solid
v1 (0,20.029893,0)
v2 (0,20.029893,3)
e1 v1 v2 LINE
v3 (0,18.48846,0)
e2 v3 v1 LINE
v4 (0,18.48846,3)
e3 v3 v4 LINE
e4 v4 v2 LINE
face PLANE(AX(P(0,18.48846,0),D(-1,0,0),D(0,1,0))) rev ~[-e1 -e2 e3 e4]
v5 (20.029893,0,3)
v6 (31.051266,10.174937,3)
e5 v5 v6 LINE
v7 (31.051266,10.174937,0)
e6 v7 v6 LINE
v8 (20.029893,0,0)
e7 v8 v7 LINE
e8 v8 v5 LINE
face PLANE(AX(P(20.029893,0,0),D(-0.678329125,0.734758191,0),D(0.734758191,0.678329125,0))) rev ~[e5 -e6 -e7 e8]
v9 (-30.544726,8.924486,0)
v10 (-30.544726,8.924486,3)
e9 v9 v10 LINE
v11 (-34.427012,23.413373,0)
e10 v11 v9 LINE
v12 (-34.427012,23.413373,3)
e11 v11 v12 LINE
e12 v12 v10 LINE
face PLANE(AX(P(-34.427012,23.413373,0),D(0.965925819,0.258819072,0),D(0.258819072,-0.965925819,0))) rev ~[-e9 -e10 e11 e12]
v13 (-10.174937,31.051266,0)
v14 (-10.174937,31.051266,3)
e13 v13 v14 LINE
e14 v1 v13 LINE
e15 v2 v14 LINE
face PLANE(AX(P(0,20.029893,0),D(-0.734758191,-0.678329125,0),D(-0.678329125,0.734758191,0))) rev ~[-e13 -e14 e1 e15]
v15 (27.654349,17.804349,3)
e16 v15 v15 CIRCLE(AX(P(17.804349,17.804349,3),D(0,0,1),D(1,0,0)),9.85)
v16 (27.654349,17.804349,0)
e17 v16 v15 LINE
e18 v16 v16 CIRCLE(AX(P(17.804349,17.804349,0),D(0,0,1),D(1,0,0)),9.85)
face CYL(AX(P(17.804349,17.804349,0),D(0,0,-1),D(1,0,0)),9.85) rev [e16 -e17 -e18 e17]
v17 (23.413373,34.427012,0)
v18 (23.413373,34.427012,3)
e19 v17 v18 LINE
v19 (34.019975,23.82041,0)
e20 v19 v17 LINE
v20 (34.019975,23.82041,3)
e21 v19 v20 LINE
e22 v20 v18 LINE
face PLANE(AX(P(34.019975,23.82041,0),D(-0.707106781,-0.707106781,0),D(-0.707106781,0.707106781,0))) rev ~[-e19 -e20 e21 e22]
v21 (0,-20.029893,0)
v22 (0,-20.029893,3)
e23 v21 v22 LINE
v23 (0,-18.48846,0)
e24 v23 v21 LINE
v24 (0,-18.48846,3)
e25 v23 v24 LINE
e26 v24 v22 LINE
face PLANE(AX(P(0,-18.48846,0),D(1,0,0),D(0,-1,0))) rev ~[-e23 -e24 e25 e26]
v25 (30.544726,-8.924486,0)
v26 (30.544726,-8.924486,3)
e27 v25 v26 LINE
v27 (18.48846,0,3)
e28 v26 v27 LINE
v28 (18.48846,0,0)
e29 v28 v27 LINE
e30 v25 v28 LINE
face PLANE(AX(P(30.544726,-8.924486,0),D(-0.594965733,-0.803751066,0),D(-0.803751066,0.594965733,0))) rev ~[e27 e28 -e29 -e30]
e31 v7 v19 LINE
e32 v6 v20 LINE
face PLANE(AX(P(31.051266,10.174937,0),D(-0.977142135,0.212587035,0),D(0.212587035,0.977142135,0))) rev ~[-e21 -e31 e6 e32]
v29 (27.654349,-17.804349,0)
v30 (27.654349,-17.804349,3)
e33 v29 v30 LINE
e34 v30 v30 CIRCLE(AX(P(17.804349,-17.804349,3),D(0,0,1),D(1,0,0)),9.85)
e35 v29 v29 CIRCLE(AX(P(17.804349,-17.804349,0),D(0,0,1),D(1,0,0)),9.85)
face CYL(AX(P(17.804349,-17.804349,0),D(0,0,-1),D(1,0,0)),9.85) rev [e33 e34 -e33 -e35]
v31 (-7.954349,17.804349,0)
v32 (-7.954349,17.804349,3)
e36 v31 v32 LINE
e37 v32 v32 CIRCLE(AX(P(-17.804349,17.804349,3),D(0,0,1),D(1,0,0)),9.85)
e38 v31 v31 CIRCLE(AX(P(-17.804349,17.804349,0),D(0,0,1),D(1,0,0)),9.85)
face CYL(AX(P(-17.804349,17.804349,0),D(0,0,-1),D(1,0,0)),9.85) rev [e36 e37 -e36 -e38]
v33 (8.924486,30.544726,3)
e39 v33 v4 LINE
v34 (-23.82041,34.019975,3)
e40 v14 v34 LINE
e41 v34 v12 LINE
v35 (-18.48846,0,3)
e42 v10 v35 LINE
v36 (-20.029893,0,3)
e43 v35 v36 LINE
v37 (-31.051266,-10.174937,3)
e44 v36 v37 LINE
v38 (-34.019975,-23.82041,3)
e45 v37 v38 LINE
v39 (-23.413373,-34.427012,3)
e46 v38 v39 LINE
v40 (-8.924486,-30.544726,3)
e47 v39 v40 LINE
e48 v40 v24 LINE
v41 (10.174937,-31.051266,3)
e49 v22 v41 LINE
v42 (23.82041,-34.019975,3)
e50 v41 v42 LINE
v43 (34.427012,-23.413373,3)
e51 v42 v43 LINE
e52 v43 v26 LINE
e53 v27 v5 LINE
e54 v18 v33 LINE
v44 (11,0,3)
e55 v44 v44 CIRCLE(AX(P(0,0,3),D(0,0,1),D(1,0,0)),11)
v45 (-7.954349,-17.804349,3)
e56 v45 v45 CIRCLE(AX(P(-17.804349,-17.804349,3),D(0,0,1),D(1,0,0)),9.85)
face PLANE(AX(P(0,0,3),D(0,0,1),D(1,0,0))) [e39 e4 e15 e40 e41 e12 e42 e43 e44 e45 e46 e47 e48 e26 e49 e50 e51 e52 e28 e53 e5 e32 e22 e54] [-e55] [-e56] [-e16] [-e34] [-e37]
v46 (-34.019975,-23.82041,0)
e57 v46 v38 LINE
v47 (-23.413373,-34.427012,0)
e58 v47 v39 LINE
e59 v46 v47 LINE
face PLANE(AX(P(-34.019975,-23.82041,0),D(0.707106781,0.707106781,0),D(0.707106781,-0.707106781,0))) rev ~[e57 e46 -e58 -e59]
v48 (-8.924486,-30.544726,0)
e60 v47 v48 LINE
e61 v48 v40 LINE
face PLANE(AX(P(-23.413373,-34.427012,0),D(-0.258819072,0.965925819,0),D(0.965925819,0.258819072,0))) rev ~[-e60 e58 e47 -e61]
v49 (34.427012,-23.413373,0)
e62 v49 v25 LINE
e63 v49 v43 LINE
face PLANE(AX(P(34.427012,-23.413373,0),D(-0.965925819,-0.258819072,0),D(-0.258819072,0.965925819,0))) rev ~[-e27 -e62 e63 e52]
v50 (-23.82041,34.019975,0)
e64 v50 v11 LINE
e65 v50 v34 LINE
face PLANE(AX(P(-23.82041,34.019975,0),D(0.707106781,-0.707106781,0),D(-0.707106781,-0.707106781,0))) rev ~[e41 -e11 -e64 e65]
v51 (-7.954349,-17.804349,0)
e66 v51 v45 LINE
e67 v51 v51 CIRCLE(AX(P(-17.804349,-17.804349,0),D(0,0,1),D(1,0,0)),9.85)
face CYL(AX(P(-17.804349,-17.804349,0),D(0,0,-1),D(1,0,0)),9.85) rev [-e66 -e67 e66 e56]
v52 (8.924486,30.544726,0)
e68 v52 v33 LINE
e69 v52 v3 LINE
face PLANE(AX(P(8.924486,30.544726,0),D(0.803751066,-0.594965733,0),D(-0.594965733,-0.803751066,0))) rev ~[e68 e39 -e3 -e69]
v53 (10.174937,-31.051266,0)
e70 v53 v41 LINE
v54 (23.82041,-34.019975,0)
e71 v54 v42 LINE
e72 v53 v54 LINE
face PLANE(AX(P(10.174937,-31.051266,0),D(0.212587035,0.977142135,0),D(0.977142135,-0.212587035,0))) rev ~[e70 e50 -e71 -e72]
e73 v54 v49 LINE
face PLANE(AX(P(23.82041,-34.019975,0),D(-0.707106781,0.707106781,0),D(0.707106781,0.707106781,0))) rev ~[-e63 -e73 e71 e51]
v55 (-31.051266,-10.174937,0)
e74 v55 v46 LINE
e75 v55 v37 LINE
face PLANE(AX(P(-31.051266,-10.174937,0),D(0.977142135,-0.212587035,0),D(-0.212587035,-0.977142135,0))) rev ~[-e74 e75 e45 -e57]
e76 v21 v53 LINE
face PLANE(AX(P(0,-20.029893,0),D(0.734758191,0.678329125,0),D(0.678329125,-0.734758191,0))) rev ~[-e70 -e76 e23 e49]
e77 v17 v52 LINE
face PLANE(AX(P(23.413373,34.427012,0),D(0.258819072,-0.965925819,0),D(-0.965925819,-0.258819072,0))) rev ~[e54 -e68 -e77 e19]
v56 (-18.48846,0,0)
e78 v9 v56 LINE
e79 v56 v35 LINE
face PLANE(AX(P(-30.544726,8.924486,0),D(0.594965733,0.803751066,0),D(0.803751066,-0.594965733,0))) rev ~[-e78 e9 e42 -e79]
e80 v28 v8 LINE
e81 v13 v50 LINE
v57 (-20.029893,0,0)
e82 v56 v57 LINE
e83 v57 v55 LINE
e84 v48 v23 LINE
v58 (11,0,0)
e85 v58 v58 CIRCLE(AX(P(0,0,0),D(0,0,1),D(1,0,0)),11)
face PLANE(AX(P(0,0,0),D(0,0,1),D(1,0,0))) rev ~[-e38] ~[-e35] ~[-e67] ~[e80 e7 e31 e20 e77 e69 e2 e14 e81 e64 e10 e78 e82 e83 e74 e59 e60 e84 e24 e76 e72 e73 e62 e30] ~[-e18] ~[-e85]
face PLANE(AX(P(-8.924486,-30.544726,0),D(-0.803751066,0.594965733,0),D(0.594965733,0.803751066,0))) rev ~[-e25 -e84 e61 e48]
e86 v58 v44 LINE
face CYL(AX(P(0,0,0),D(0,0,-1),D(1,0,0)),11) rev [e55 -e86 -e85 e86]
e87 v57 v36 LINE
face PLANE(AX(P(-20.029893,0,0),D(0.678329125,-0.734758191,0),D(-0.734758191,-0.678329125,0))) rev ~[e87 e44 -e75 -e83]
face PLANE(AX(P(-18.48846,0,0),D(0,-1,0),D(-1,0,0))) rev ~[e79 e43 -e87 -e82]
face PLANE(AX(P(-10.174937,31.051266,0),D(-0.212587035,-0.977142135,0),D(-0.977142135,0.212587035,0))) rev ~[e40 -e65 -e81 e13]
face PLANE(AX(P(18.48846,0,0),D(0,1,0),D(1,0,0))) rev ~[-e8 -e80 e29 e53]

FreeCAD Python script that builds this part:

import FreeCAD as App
import Part
import Sketcher
Q = App.Units.Quantity


def add_polygon(sketch, points):
    """Adds a closed chain of lines whose ends are joined by coincident constraints."""
    first, n = sketch.GeometryCount, len(points)
    for a, b in zip(points, points[1:] + points[:1]):
        sketch.addGeometry(Part.LineSegment(App.Vector(*a, 0), App.Vector(*b, 0)), False)
    for i in range(n):
        sketch.addConstraint(Sketcher.Constraint("Coincident", first + i, 2, first + (i + 1) % n, 1))

doc = App.newDocument("Part")
body = doc.addObject("PartDesign::Body", "Body")

# Sketch on XY plane
sketch1 = doc.addObject("Sketcher::SketchObject", "Sketch")
body.addObject(sketch1)
sketch1.AttachmentSupport = (doc.XY_Plane, [""])
sketch1.MapMode = "FlatFace"
add_polygon(sketch1, [(0, 20), (-10.2, 31.1), (-23.8, 34), (-34.4, 23.4), (-30.5, 8.9), (-18.5, 0), (-20, 0), (-31.1, -10.2), (-34, -23.8), (-23.4, -34.4), (-8.9, -30.5), (0, -18.5), (0, -20), (10.2, -31.1), (23.8, -34), (34.4, -23.4), (30.5, -8.9), (18.5, 0), (20, 0), (31.1, 10.2), (34, 23.8), (23.4, 34.4), (8.9, 30.5), (0, 18.5)])  # lines 0-23
sketch1.addGeometry(Part.Circle(App.Vector(-17.8, -17.8, 0), App.Vector(0, 0, 1), 9.8), False)  # 24
sketch1.addGeometry(Part.Circle(App.Vector(0, 0, 0), App.Vector(0, 0, 1), 11), False)  # 25
sketch1.addGeometry(Part.Circle(App.Vector(17.8, -17.8, 0), App.Vector(0, 0, 1), 9.8), False)  # 26
sketch1.addGeometry(Part.Circle(App.Vector(-17.8, 17.8, 0), App.Vector(0, 0, 1), 9.8), False)  # 27
sketch1.addGeometry(Part.Circle(App.Vector(17.8, 17.8, 0), App.Vector(0, 0, 1), 9.8), False)  # 28
sketch1.addConstraint(Sketcher.Constraint("Horizontal", 5))
sketch1.addConstraint(Sketcher.Constraint("Vertical", 11))
sketch1.addConstraint(Sketcher.Constraint("Horizontal", 17))
sketch1.addConstraint(Sketcher.Constraint("Vertical", 23))
sketch1.addConstraint(Sketcher.Constraint("Coincident", 25, 3, -1, 1))
sketch1.addConstraint(Sketcher.Constraint("Equal", 24, 26))
sketch1.addConstraint(Sketcher.Constraint("Equal", 26, 27))
sketch1.addConstraint(Sketcher.Constraint("Equal", 27, 28))
sketch1.addConstraint(Sketcher.Constraint("Symmetric", 26, 3, 27, 3, -1, 1))
sketch1.addConstraint(Sketcher.Constraint("Symmetric", 24, 3, 28, 3, -1, 1))
sketch1.addConstraint(Sketcher.Constraint("Symmetric", 0, 2, 12, 2, -1, 1))
sketch1.addConstraint(Sketcher.Constraint("Symmetric", 1, 2, 13, 2, -1, 1))
sketch1.addConstraint(Sketcher.Constraint("Symmetric", 2, 2, 14, 2, -1, 1))
sketch1.addConstraint(Sketcher.Constraint("Symmetric", 3, 2, 15, 2, -1, 1))
sketch1.addConstraint(Sketcher.Constraint("Symmetric", 4, 2, 16, 2, -1, 1))
sketch1.addConstraint(Sketcher.Constraint("Symmetric", 6, 2, 18, 2, -1, 1))
sketch1.addConstraint(Sketcher.Constraint("Symmetric", 7, 2, 19, 2, -1, 1))
sketch1.addConstraint(Sketcher.Constraint("Symmetric", 8, 2, 20, 2, -1, 1))
sketch1.addConstraint(Sketcher.Constraint("Symmetric", 9, 2, 21, 2, -1, 1))
sketch1.addConstraint(Sketcher.Constraint("Symmetric", 10, 2, 22, 2, -1, 1))
sketch1.addConstraint(Sketcher.Constraint("Symmetric", 24, 3, 26, 3, -2))
sketch1.addConstraint(Sketcher.Constraint("Symmetric", 5, 2, 17, 2, -2))
sketch1.addConstraint(Sketcher.Constraint("Symmetric", 11, 2, 23, 2, -1))
sketch1.addConstraint(Sketcher.Constraint("Perpendicular", 0, 6))
sketch1.addConstraint(Sketcher.Constraint("Perpendicular", 1, 7))
sketch1.addConstraint(Sketcher.Constraint("Perpendicular", 2, 8))
sketch1.addConstraint(Sketcher.Constraint("Perpendicular", 3, 9))
sketch1.addConstraint(Sketcher.Constraint("Perpendicular", 4, 10))
sketch1.addConstraint(Sketcher.Constraint("Equal", 17, 11))
sketch1.addConstraint(Sketcher.Constraint("Equal", 0, 2))
sketch1.addConstraint(Sketcher.Constraint("Equal", 2, 3))
sketch1.addConstraint(Sketcher.Constraint("Equal", 3, 4))
sketch1.addConstraint(Sketcher.Constraint("Equal", 4, 6))
sketch1.addConstraint(Sketcher.Constraint("Equal", 1, 7))
sketch1.addConstraint(Sketcher.Constraint("Equal", 6, 8))
sketch1.addConstraint(Sketcher.Constraint("Equal", 8, 9))
sketch1.addConstraint(Sketcher.Constraint("Diameter", 25, Q("22 mm")))
sketch1.addConstraint(Sketcher.Constraint("Diameter", 24, Q("19.7 mm")))
sketch1.addConstraint(Sketcher.Constraint("Angle", 2, Q("-135 deg")))
sketch1.addConstraint(Sketcher.Constraint("Angle", 3, Q("-74.999998 deg")))
sketch1.addConstraint(Sketcher.Constraint("Distance", 0, Q("15 mm")))
sketch1.addConstraint(Sketcher.Constraint("DistanceX", 5, 2, 5, 1, Q("1.541433 mm")))
sketch1.addConstraint(Sketcher.Constraint("DistanceX", 24, 3, -1, 1, Q("17.804349 mm")))
sketch1.addConstraint(Sketcher.Constraint("DistanceY", 24, 3, -1, 1, Q("17.804349 mm")))
sketch1.addConstraint(Sketcher.Constraint("DistanceX", 1, 2, -1, 1, Q("23.82041 mm")))
sketch1.addConstraint(Sketcher.Constraint("DistanceX", 4, 2, -1, 1, Q("18.48846 mm")))
sketch1.addConstraint(Sketcher.Constraint("DistanceX", 27, 3, 0, 2, Q("7.629412 mm")))
pad1 = doc.addObject("PartDesign::Pad", "Pad")
body.addObject(pad1)
pad1.Profile = sketch1
pad1.Length = 3

doc.recompute()
